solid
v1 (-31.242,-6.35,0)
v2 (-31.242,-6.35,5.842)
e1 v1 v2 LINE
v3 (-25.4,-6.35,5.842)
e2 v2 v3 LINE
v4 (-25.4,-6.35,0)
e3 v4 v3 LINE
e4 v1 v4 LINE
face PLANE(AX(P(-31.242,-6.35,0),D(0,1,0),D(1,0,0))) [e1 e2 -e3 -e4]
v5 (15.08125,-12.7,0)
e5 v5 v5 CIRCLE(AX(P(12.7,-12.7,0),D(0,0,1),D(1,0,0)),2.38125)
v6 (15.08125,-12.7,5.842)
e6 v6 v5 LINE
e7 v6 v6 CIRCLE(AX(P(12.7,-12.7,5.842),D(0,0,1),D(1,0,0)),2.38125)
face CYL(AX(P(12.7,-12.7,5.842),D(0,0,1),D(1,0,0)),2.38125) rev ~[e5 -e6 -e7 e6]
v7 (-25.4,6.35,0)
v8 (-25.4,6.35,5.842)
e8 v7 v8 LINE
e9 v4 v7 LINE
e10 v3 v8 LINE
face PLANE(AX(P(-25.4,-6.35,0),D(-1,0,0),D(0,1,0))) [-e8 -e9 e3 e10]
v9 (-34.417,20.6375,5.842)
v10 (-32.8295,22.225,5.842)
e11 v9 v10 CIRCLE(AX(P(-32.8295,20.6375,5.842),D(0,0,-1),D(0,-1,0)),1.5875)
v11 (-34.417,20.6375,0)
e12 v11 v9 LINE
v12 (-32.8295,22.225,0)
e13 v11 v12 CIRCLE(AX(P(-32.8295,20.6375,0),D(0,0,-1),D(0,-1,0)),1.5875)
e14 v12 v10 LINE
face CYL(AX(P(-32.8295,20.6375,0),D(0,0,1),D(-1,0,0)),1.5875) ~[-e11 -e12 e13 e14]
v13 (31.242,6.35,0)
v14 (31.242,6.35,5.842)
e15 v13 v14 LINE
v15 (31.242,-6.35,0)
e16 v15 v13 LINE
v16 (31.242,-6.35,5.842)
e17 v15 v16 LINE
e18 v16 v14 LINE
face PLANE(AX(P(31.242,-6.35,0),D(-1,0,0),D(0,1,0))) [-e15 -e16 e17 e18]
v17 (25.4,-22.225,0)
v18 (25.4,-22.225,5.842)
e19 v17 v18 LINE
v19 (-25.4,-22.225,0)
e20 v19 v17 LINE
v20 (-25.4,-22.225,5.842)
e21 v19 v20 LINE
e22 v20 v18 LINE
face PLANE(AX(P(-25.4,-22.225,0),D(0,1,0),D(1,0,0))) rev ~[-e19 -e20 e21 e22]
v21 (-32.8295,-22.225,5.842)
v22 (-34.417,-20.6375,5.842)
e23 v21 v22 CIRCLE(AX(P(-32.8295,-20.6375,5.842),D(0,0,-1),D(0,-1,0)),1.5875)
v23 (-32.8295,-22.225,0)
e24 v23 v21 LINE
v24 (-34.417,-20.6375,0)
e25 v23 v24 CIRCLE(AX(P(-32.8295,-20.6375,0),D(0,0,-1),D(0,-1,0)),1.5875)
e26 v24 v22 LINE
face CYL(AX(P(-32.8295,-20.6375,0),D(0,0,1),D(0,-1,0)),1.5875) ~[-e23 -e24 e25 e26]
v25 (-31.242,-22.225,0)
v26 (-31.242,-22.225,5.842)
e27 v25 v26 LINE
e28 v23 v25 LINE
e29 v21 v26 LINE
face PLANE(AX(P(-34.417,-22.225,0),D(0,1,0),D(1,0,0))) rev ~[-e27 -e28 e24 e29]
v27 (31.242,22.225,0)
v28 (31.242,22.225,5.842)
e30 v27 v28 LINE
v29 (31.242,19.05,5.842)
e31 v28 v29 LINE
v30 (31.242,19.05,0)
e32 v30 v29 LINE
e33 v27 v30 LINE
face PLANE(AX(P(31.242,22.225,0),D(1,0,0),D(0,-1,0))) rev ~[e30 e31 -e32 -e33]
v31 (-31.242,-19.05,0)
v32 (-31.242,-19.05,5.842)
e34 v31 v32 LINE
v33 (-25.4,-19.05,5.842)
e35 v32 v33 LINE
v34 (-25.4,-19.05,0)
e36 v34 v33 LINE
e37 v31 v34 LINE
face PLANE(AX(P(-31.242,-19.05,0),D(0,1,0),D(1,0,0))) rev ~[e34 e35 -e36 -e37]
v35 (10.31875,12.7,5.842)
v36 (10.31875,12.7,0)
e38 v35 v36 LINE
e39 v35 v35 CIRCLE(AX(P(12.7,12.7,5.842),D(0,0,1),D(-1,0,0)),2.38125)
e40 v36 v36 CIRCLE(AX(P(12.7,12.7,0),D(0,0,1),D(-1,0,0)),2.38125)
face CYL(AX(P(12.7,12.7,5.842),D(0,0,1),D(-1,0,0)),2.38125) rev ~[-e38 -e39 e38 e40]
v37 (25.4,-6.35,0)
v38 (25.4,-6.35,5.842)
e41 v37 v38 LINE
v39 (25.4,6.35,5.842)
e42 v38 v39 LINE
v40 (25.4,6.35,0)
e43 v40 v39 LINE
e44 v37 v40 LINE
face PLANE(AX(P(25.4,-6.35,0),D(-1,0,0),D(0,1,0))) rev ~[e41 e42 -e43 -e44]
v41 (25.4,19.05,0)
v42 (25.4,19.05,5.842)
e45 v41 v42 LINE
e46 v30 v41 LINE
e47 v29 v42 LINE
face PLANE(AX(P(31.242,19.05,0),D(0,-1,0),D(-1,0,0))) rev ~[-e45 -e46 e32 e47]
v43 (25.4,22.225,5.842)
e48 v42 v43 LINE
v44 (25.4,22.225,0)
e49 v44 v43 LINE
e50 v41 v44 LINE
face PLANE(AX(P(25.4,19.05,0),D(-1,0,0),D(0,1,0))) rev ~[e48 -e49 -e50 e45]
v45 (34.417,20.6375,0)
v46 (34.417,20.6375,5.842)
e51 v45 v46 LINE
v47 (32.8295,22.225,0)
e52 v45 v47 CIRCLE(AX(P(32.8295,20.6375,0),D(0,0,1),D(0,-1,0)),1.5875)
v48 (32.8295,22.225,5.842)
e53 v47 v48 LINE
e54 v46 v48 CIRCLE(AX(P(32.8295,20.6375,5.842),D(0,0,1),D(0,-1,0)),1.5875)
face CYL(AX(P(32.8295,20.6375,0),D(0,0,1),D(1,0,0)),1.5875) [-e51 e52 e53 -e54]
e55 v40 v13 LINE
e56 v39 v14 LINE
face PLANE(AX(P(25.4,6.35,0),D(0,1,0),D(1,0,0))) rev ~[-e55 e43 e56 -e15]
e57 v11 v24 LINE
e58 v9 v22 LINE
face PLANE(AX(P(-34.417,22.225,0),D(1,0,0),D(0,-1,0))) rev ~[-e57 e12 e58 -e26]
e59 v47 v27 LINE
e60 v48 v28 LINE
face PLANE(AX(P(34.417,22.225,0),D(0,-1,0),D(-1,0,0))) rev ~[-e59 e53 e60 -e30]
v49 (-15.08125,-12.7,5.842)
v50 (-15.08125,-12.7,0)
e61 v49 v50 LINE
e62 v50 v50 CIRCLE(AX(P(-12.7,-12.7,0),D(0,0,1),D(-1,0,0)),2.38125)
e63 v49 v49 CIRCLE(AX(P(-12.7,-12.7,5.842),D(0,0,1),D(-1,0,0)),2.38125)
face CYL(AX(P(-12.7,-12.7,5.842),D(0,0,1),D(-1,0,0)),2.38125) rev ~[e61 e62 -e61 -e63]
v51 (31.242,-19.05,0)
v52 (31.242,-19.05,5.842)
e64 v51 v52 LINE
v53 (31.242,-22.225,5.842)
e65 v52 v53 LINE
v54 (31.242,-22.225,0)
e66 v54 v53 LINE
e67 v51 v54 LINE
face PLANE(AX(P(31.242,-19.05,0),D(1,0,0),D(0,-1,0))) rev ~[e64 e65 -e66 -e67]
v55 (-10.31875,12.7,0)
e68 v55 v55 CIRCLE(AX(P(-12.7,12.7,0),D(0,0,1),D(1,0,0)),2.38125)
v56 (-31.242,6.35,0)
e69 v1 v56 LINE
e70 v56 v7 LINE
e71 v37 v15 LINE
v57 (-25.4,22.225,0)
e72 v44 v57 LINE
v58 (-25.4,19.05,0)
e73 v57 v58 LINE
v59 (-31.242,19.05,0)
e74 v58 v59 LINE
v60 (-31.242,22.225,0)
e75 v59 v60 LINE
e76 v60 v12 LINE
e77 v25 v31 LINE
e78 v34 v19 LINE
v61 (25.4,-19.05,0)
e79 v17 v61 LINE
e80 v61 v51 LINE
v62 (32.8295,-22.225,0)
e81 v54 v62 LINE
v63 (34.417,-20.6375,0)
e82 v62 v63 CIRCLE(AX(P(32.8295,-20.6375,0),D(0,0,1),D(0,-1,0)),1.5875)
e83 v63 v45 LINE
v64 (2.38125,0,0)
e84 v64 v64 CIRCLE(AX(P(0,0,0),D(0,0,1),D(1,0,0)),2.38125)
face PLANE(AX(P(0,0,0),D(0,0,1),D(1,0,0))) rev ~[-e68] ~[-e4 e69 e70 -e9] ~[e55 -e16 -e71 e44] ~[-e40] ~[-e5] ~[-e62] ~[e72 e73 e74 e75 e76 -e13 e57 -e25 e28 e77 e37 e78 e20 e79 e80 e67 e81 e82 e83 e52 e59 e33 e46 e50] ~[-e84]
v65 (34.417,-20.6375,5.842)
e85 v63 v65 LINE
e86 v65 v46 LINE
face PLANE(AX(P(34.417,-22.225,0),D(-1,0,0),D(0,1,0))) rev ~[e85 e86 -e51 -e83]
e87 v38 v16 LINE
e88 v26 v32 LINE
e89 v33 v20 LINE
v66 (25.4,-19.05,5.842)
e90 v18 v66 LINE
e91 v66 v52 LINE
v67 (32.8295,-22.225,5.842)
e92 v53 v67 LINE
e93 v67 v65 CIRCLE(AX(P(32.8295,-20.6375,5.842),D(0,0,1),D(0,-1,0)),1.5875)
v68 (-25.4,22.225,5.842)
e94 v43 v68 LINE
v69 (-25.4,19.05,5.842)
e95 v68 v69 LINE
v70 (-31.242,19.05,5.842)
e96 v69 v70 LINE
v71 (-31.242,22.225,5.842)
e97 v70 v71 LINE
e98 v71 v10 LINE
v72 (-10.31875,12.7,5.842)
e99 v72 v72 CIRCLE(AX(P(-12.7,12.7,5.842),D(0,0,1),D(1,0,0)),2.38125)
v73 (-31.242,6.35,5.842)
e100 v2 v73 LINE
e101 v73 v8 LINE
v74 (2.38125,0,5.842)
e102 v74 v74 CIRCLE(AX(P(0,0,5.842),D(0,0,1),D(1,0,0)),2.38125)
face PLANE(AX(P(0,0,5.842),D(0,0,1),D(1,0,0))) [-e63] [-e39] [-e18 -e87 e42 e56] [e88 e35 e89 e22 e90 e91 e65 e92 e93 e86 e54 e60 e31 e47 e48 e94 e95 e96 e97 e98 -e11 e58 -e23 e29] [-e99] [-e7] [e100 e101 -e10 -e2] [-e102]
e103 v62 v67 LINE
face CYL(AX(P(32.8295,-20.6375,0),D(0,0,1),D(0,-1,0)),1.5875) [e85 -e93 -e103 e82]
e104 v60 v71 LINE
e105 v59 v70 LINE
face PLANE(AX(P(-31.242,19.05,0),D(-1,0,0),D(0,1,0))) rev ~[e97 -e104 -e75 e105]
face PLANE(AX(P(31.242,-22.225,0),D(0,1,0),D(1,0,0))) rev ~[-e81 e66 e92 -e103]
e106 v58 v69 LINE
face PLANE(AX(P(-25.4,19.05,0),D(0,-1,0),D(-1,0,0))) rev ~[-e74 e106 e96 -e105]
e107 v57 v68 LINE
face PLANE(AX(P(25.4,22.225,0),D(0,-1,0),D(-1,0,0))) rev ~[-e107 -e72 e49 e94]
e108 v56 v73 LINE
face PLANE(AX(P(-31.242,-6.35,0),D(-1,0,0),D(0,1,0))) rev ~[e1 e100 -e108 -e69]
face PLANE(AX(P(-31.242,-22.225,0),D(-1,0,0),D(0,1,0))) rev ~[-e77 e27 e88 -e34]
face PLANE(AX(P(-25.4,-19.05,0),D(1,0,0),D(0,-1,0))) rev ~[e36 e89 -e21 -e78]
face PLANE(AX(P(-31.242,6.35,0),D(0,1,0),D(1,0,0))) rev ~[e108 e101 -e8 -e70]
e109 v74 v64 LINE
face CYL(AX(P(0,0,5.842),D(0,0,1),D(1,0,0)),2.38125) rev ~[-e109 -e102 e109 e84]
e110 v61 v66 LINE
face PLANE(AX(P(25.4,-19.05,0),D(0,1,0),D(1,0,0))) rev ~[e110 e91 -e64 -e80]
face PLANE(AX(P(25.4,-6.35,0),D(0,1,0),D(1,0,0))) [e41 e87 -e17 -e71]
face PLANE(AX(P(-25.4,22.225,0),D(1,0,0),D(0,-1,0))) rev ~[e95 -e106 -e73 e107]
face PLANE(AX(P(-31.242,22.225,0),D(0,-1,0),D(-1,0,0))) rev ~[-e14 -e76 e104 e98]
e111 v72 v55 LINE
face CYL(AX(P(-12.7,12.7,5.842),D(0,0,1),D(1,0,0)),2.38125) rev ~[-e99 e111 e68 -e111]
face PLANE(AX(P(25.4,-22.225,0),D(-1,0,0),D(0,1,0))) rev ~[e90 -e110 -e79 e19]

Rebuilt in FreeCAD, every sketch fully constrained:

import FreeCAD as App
import Part
import Sketcher
from FreeCAD import Vector
Q = App.Units.Quantity


def edges_at(feature, points):
    """Names of the edges that pass closest to the given points."""
    edges = feature.Shape.Edges
    near = lambda p: min(range(len(edges)), key=lambda i: edges[i].distToShape(Part.Vertex(*p))[0])
    return sorted({f"Edge{near(p) + 1}" for p in points})

doc = App.newDocument("Part")
body = doc.addObject("PartDesign::Body", "Body")

sketch1 = doc.addObject("Sketcher::SketchObject", "Sketch")
body.addObject(sketch1)
sketch1.AttachmentSupport = (doc.XY_Plane, [""])
sketch1.MapMode = "FlatFace"
sketch1.addGeometry(Part.LineSegment(Vector(-25.4, -22.2, 0), Vector(25.4, -22.2, 0)), False)
sketch1.addGeometry(Part.LineSegment(Vector(25.4, -22.2, 0), Vector(25.4, -19.1, 0)), False)
sketch1.addGeometry(Part.LineSegment(Vector(25.4, -19.1, 0), Vector(31.2, -19.1, 0)), False)
sketch1.addGeometry(Part.LineSegment(Vector(31.2, -19.1, 0), Vector(31.2, -22.2, 0)), False)
sketch1.addGeometry(Part.LineSegment(Vector(31.2, -22.2, 0), Vector(34.4, -22.2, 0)), False)
sketch1.addGeometry(Part.LineSegment(Vector(34.4, -22.2, 0), Vector(34.4, 22.2, 0)), False)
sketch1.addGeometry(Part.LineSegment(Vector(34.4, 22.2, 0), Vector(31.2, 22.2, 0)), False)
sketch1.addGeometry(Part.LineSegment(Vector(31.2, 22.2, 0), Vector(31.2, 19.1, 0)), False)
sketch1.addGeometry(Part.LineSegment(Vector(31.2, 19.1, 0), Vector(25.4, 19.1, 0)), False)
sketch1.addGeometry(Part.LineSegment(Vector(25.4, 19.1, 0), Vector(25.4, 22.2, 0)), False)
sketch1.addGeometry(Part.LineSegment(Vector(25.4, 22.2, 0), Vector(-25.4, 22.2, 0)), False)
sketch1.addGeometry(Part.LineSegment(Vector(-25.4, 22.2, 0), Vector(-25.4, 19.1, 0)), False)
sketch1.addGeometry(Part.LineSegment(Vector(-25.4, 19.1, 0), Vector(-31.2, 19.1, 0)), False)
sketch1.addGeometry(Part.LineSegment(Vector(-31.2, 19.1, 0), Vector(-31.2, 22.2, 0)), False)
sketch1.addGeometry(Part.LineSegment(Vector(-31.2, 22.2, 0), Vector(-34.4, 22.2, 0)), False)
sketch1.addGeometry(Part.LineSegment(Vector(-34.4, 22.2, 0), Vector(-34.4, -22.2, 0)), False)
sketch1.addGeometry(Part.LineSegment(Vector(-34.4, -22.2, 0), Vector(-31.2, -22.2, 0)), False)
sketch1.addGeometry(Part.LineSegment(Vector(-31.2, -22.2, 0), Vector(-31.2, -19.1, 0)), False)
sketch1.addGeometry(Part.LineSegment(Vector(-31.2, -19.1, 0), Vector(-25.4, -19.1, 0)), False)
sketch1.addGeometry(Part.LineSegment(Vector(-25.4, -19.1, 0), Vector(-25.4, -22.2, 0)), False)
sketch1.addGeometry(Part.LineSegment(Vector(-25.4, -6.3, 0), Vector(-31.2, -6.3, 0)), False)
sketch1.addGeometry(Part.LineSegment(Vector(-31.2, -6.3, 0), Vector(-31.2, 6.3, 0)), False)
sketch1.addGeometry(Part.LineSegment(Vector(-31.2, 6.3, 0), Vector(-25.4, 6.3, 0)), False)
sketch1.addGeometry(Part.LineSegment(Vector(-25.4, 6.3, 0), Vector(-25.4, -6.3, 0)), False)
sketch1.addGeometry(Part.LineSegment(Vector(31.2, -6.3, 0), Vector(25.4, -6.3, 0)), False)
sketch1.addGeometry(Part.LineSegment(Vector(25.4, -6.3, 0), Vector(25.4, 6.3, 0)), False)
sketch1.addGeometry(Part.LineSegment(Vector(25.4, 6.3, 0), Vector(31.2, 6.3, 0)), False)
sketch1.addGeometry(Part.LineSegment(Vector(31.2, 6.3, 0), Vector(31.2, -6.3, 0)), False)
sketch1.addConstraint(Sketcher.Constraint("Coincident", 0, 2, 1, 1))
sketch1.addConstraint(Sketcher.Constraint("Coincident", 1, 2, 2, 1))
sketch1.addConstraint(Sketcher.Constraint("Coincident", 2, 2, 3, 1))
sketch1.addConstraint(Sketcher.Constraint("Coincident", 3, 2, 4, 1))
sketch1.addConstraint(Sketcher.Constraint("Coincident", 4, 2, 5, 1))
sketch1.addConstraint(Sketcher.Constraint("Coincident", 5, 2, 6, 1))
sketch1.addConstraint(Sketcher.Constraint("Coincident", 6, 2, 7, 1))
sketch1.addConstraint(Sketcher.Constraint("Coincident", 7, 2, 8, 1))
sketch1.addConstraint(Sketcher.Constraint("Coincident", 8, 2, 9, 1))
sketch1.addConstraint(Sketcher.Constraint("Coincident", 9, 2, 10, 1))
sketch1.addConstraint(Sketcher.Constraint("Coincident", 10, 2, 11, 1))
sketch1.addConstraint(Sketcher.Constraint("Coincident", 11, 2, 12, 1))
sketch1.addConstraint(Sketcher.Constraint("Coincident", 12, 2, 13, 1))
sketch1.addConstraint(Sketcher.Constraint("Coincident", 13, 2, 14, 1))
sketch1.addConstraint(Sketcher.Constraint("Coincident", 14, 2, 15, 1))
sketch1.addConstraint(Sketcher.Constraint("Coincident", 15, 2, 16, 1))
sketch1.addConstraint(Sketcher.Constraint("Coincident", 16, 2, 17, 1))
sketch1.addConstraint(Sketcher.Constraint("Coincident", 17, 2, 18, 1))
sketch1.addConstraint(Sketcher.Constraint("Coincident", 18, 2, 19, 1))
sketch1.addConstraint(Sketcher.Constraint("Coincident", 19, 2, 0, 1))
sketch1.addConstraint(Sketcher.Constraint("Coincident", 20, 2, 21, 1))
sketch1.addConstraint(Sketcher.Constraint("Coincident", 21, 2, 22, 1))
sketch1.addConstraint(Sketcher.Constraint("Coincident", 22, 2, 23, 1))
sketch1.addConstraint(Sketcher.Constraint("Coincident", 23, 2, 20, 1))
sketch1.addConstraint(Sketcher.Constraint("Coincident", 24, 2, 25, 1))
sketch1.addConstraint(Sketcher.Constraint("Coincident", 25, 2, 26, 1))
sketch1.addConstraint(Sketcher.Constraint("Coincident", 26, 2, 27, 1))
sketch1.addConstraint(Sketcher.Constraint("Coincident", 27, 2, 24, 1))
sketch1.addConstraint(Sketcher.Constraint("Horizontal", 0))
sketch1.addConstraint(Sketcher.Constraint("Vertical", 1))
sketch1.addConstraint(Sketcher.Constraint("Horizontal", 2))
sketch1.addConstraint(Sketcher.Constraint("Vertical", 3))
sketch1.addConstraint(Sketcher.Constraint("Horizontal", 4))
sketch1.addConstraint(Sketcher.Constraint("Vertical", 5))
sketch1.addConstraint(Sketcher.Constraint("Horizontal", 6))
sketch1.addConstraint(Sketcher.Constraint("Vertical", 7))
sketch1.addConstraint(Sketcher.Constraint("Horizontal", 8))
sketch1.addConstraint(Sketcher.Constraint("Vertical", 9))
sketch1.addConstraint(Sketcher.Constraint("Horizontal", 10))
sketch1.addConstraint(Sketcher.Constraint("Vertical", 11))
sketch1.addConstraint(Sketcher.Constraint("Horizontal", 12))
sketch1.addConstraint(Sketcher.Constraint("Vertical", 13))
sketch1.addConstraint(Sketcher.Constraint("Horizontal", 14))
sketch1.addConstraint(Sketcher.Constraint("Vertical", 15))
sketch1.addConstraint(Sketcher.Constraint("Horizontal", 16))
sketch1.addConstraint(Sketcher.Constraint("Vertical", 17))
sketch1.addConstraint(Sketcher.Constraint("Horizontal", 18))
sketch1.addConstraint(Sketcher.Constraint("Vertical", 19))
sketch1.addConstraint(Sketcher.Constraint("Horizontal", 20))
sketch1.addConstraint(Sketcher.Constraint("Vertical", 21))
sketch1.addConstraint(Sketcher.Constraint("Horizontal", 22))
sketch1.addConstraint(Sketcher.Constraint("Vertical", 23))
sketch1.addConstraint(Sketcher.Constraint("Horizontal", 24))
sketch1.addConstraint(Sketcher.Constraint("Vertical", 25))
sketch1.addConstraint(Sketcher.Constraint("Horizontal", 26))
sketch1.addConstraint(Sketcher.Constraint("Vertical", 27))
sketch1.addConstraint(Sketcher.Constraint("Symmetric", 0, 2, 10, 2, -1, 1))
sketch1.addConstraint(Sketcher.Constraint("Symmetric", 2, 2, 12, 2, -1, 1))
sketch1.addConstraint(Sketcher.Constraint("Symmetric", 4, 2, 14, 2, -1, 1))
sketch1.addConstraint(Sketcher.Constraint("Symmetric", 6, 2, 16, 2, -1, 1))
sketch1.addConstraint(Sketcher.Constraint("Symmetric", 8, 2, 18, 2, -1, 1))
sketch1.addConstraint(Sketcher.Constraint("Symmetric", 22, 2, 24, 2, -1, 1))
sketch1.addConstraint(Sketcher.Constraint("Symmetric", 20, 2, 26, 2, -1, 1))
sketch1.addConstraint(Sketcher.Constraint("Symmetric", 8, 2, 11, 2, -2))
sketch1.addConstraint(Sketcher.Constraint("Symmetric", 6, 2, 13, 2, -2))
sketch1.addConstraint(Sketcher.Constraint("Horizontal", 0, 2, 3, 2))
sketch1.addConstraint(Sketcher.Constraint("Horizontal", 23, 2, 24, 2))
sketch1.addConstraint(Sketcher.Constraint("Vertical", 17, 2, 20, 2))
sketch1.addConstraint(Sketcher.Constraint("Vertical", 19, 2, 22, 2))
sketch1.addConstraint(Sketcher.Constraint("Equal", 16, 1))
sketch1.addConstraint(Sketcher.Constraint("DistanceX", 0, 1, 0, 2, Q("2 in")))
sketch1.addConstraint(Sketcher.Constraint("DistanceY", 21, 1, 21, 2, Q("0.5 in")))
sketch1.addConstraint(Sketcher.Constraint("DistanceX", 2, 1, 2, 2, Q("0.23 in")))
sketch1.addConstraint(Sketcher.Constraint("DistanceY", 5, 1, 5, 2, Q("1.75 in")))
sketch1.addConstraint(Sketcher.Constraint("DistanceY", 2, 2, 7, 2, Q("1.5 in")))
pad1 = doc.addObject("PartDesign::Pad", "Pad")
body.addObject(pad1)
pad1.Profile = sketch1
pad1.Length = Q("0.23 in")
doc.recompute()

fillet = doc.addObject("PartDesign::Fillet", "Fillet")
body.addObject(fillet)
fillet.Base = (pad1, edges_at(pad1, [
    (34.417, 22.225, 2.921),
    (34.417, -22.225, 2.921),
    (-34.417, -22.225, 2.921),
    (-34.417, 22.225, 2.921),
]))
fillet.Radius = Q("0.0625 in")

sketch2 = doc.addObject("Sketcher::SketchObject", "Sketch001")
body.addObject(sketch2)
sketch2.AttachmentSupport = (doc.XY_Plane, [""])
sketch2.MapMode = "FlatFace"
sketch2.AttachmentOffset = App.Placement(Vector(0, 0, 0.23 * 25.4), App.Rotation())
sketch2.addGeometry(Part.Circle(Vector(0, 0, 0), Vector(0, 0, 1), 2.4), False)
sketch2.addGeometry(Part.Circle(Vector(-12.7, 12.7, 0), Vector(0, 0, 1), 2.4), False)
sketch2.addGeometry(Part.Circle(Vector(-12.7, -12.7, 0), Vector(0, 0, 1), 2.4), False)
sketch2.addGeometry(Part.Circle(Vector(12.7, -12.7, 0), Vector(0, 0, 1), 2.4), False)
sketch2.addGeometry(Part.Circle(Vector(12.7, 12.7, 0), Vector(0, 0, 1), 2.4), False)
sketch2.addConstraint(Sketcher.Constraint("Coincident", 0, 3, -1, 1))
sketch2.addConstraint(Sketcher.Constraint("Equal", 0, 1))
sketch2.addConstraint(Sketcher.Constraint("Equal", 1, 2))
sketch2.addConstraint(Sketcher.Constraint("Equal", 2, 3))
sketch2.addConstraint(Sketcher.Constraint("Equal", 3, 4))
sketch2.addConstraint(Sketcher.Constraint("Symmetric", 1, 3, 3, 3, -1, 1))
sketch2.addConstraint(Sketcher.Constraint("Symmetric", 2, 3, 4, 3, -1, 1))
sketch2.addConstraint(Sketcher.Constraint("Symmetric", 2, 3, 3, 3, -2))
sketch2.addConstraint(Sketcher.Constraint("Diameter", 0, Q("0.1875 in")))
sketch2.addConstraint(Sketcher.Constraint("DistanceY", 2, 3, 1, 3, Q("1 in")))
sketch2.addConstraint(Sketcher.Constraint("DistanceX", 2, 3, 3, 3, Q("1 in")))
pocket1 = doc.addObject("PartDesign::Pocket", "Pocket")
body.addObject(pocket1)
pocket1.Profile = sketch2
pocket1.Type = "ThroughAll"

doc.recompute()
